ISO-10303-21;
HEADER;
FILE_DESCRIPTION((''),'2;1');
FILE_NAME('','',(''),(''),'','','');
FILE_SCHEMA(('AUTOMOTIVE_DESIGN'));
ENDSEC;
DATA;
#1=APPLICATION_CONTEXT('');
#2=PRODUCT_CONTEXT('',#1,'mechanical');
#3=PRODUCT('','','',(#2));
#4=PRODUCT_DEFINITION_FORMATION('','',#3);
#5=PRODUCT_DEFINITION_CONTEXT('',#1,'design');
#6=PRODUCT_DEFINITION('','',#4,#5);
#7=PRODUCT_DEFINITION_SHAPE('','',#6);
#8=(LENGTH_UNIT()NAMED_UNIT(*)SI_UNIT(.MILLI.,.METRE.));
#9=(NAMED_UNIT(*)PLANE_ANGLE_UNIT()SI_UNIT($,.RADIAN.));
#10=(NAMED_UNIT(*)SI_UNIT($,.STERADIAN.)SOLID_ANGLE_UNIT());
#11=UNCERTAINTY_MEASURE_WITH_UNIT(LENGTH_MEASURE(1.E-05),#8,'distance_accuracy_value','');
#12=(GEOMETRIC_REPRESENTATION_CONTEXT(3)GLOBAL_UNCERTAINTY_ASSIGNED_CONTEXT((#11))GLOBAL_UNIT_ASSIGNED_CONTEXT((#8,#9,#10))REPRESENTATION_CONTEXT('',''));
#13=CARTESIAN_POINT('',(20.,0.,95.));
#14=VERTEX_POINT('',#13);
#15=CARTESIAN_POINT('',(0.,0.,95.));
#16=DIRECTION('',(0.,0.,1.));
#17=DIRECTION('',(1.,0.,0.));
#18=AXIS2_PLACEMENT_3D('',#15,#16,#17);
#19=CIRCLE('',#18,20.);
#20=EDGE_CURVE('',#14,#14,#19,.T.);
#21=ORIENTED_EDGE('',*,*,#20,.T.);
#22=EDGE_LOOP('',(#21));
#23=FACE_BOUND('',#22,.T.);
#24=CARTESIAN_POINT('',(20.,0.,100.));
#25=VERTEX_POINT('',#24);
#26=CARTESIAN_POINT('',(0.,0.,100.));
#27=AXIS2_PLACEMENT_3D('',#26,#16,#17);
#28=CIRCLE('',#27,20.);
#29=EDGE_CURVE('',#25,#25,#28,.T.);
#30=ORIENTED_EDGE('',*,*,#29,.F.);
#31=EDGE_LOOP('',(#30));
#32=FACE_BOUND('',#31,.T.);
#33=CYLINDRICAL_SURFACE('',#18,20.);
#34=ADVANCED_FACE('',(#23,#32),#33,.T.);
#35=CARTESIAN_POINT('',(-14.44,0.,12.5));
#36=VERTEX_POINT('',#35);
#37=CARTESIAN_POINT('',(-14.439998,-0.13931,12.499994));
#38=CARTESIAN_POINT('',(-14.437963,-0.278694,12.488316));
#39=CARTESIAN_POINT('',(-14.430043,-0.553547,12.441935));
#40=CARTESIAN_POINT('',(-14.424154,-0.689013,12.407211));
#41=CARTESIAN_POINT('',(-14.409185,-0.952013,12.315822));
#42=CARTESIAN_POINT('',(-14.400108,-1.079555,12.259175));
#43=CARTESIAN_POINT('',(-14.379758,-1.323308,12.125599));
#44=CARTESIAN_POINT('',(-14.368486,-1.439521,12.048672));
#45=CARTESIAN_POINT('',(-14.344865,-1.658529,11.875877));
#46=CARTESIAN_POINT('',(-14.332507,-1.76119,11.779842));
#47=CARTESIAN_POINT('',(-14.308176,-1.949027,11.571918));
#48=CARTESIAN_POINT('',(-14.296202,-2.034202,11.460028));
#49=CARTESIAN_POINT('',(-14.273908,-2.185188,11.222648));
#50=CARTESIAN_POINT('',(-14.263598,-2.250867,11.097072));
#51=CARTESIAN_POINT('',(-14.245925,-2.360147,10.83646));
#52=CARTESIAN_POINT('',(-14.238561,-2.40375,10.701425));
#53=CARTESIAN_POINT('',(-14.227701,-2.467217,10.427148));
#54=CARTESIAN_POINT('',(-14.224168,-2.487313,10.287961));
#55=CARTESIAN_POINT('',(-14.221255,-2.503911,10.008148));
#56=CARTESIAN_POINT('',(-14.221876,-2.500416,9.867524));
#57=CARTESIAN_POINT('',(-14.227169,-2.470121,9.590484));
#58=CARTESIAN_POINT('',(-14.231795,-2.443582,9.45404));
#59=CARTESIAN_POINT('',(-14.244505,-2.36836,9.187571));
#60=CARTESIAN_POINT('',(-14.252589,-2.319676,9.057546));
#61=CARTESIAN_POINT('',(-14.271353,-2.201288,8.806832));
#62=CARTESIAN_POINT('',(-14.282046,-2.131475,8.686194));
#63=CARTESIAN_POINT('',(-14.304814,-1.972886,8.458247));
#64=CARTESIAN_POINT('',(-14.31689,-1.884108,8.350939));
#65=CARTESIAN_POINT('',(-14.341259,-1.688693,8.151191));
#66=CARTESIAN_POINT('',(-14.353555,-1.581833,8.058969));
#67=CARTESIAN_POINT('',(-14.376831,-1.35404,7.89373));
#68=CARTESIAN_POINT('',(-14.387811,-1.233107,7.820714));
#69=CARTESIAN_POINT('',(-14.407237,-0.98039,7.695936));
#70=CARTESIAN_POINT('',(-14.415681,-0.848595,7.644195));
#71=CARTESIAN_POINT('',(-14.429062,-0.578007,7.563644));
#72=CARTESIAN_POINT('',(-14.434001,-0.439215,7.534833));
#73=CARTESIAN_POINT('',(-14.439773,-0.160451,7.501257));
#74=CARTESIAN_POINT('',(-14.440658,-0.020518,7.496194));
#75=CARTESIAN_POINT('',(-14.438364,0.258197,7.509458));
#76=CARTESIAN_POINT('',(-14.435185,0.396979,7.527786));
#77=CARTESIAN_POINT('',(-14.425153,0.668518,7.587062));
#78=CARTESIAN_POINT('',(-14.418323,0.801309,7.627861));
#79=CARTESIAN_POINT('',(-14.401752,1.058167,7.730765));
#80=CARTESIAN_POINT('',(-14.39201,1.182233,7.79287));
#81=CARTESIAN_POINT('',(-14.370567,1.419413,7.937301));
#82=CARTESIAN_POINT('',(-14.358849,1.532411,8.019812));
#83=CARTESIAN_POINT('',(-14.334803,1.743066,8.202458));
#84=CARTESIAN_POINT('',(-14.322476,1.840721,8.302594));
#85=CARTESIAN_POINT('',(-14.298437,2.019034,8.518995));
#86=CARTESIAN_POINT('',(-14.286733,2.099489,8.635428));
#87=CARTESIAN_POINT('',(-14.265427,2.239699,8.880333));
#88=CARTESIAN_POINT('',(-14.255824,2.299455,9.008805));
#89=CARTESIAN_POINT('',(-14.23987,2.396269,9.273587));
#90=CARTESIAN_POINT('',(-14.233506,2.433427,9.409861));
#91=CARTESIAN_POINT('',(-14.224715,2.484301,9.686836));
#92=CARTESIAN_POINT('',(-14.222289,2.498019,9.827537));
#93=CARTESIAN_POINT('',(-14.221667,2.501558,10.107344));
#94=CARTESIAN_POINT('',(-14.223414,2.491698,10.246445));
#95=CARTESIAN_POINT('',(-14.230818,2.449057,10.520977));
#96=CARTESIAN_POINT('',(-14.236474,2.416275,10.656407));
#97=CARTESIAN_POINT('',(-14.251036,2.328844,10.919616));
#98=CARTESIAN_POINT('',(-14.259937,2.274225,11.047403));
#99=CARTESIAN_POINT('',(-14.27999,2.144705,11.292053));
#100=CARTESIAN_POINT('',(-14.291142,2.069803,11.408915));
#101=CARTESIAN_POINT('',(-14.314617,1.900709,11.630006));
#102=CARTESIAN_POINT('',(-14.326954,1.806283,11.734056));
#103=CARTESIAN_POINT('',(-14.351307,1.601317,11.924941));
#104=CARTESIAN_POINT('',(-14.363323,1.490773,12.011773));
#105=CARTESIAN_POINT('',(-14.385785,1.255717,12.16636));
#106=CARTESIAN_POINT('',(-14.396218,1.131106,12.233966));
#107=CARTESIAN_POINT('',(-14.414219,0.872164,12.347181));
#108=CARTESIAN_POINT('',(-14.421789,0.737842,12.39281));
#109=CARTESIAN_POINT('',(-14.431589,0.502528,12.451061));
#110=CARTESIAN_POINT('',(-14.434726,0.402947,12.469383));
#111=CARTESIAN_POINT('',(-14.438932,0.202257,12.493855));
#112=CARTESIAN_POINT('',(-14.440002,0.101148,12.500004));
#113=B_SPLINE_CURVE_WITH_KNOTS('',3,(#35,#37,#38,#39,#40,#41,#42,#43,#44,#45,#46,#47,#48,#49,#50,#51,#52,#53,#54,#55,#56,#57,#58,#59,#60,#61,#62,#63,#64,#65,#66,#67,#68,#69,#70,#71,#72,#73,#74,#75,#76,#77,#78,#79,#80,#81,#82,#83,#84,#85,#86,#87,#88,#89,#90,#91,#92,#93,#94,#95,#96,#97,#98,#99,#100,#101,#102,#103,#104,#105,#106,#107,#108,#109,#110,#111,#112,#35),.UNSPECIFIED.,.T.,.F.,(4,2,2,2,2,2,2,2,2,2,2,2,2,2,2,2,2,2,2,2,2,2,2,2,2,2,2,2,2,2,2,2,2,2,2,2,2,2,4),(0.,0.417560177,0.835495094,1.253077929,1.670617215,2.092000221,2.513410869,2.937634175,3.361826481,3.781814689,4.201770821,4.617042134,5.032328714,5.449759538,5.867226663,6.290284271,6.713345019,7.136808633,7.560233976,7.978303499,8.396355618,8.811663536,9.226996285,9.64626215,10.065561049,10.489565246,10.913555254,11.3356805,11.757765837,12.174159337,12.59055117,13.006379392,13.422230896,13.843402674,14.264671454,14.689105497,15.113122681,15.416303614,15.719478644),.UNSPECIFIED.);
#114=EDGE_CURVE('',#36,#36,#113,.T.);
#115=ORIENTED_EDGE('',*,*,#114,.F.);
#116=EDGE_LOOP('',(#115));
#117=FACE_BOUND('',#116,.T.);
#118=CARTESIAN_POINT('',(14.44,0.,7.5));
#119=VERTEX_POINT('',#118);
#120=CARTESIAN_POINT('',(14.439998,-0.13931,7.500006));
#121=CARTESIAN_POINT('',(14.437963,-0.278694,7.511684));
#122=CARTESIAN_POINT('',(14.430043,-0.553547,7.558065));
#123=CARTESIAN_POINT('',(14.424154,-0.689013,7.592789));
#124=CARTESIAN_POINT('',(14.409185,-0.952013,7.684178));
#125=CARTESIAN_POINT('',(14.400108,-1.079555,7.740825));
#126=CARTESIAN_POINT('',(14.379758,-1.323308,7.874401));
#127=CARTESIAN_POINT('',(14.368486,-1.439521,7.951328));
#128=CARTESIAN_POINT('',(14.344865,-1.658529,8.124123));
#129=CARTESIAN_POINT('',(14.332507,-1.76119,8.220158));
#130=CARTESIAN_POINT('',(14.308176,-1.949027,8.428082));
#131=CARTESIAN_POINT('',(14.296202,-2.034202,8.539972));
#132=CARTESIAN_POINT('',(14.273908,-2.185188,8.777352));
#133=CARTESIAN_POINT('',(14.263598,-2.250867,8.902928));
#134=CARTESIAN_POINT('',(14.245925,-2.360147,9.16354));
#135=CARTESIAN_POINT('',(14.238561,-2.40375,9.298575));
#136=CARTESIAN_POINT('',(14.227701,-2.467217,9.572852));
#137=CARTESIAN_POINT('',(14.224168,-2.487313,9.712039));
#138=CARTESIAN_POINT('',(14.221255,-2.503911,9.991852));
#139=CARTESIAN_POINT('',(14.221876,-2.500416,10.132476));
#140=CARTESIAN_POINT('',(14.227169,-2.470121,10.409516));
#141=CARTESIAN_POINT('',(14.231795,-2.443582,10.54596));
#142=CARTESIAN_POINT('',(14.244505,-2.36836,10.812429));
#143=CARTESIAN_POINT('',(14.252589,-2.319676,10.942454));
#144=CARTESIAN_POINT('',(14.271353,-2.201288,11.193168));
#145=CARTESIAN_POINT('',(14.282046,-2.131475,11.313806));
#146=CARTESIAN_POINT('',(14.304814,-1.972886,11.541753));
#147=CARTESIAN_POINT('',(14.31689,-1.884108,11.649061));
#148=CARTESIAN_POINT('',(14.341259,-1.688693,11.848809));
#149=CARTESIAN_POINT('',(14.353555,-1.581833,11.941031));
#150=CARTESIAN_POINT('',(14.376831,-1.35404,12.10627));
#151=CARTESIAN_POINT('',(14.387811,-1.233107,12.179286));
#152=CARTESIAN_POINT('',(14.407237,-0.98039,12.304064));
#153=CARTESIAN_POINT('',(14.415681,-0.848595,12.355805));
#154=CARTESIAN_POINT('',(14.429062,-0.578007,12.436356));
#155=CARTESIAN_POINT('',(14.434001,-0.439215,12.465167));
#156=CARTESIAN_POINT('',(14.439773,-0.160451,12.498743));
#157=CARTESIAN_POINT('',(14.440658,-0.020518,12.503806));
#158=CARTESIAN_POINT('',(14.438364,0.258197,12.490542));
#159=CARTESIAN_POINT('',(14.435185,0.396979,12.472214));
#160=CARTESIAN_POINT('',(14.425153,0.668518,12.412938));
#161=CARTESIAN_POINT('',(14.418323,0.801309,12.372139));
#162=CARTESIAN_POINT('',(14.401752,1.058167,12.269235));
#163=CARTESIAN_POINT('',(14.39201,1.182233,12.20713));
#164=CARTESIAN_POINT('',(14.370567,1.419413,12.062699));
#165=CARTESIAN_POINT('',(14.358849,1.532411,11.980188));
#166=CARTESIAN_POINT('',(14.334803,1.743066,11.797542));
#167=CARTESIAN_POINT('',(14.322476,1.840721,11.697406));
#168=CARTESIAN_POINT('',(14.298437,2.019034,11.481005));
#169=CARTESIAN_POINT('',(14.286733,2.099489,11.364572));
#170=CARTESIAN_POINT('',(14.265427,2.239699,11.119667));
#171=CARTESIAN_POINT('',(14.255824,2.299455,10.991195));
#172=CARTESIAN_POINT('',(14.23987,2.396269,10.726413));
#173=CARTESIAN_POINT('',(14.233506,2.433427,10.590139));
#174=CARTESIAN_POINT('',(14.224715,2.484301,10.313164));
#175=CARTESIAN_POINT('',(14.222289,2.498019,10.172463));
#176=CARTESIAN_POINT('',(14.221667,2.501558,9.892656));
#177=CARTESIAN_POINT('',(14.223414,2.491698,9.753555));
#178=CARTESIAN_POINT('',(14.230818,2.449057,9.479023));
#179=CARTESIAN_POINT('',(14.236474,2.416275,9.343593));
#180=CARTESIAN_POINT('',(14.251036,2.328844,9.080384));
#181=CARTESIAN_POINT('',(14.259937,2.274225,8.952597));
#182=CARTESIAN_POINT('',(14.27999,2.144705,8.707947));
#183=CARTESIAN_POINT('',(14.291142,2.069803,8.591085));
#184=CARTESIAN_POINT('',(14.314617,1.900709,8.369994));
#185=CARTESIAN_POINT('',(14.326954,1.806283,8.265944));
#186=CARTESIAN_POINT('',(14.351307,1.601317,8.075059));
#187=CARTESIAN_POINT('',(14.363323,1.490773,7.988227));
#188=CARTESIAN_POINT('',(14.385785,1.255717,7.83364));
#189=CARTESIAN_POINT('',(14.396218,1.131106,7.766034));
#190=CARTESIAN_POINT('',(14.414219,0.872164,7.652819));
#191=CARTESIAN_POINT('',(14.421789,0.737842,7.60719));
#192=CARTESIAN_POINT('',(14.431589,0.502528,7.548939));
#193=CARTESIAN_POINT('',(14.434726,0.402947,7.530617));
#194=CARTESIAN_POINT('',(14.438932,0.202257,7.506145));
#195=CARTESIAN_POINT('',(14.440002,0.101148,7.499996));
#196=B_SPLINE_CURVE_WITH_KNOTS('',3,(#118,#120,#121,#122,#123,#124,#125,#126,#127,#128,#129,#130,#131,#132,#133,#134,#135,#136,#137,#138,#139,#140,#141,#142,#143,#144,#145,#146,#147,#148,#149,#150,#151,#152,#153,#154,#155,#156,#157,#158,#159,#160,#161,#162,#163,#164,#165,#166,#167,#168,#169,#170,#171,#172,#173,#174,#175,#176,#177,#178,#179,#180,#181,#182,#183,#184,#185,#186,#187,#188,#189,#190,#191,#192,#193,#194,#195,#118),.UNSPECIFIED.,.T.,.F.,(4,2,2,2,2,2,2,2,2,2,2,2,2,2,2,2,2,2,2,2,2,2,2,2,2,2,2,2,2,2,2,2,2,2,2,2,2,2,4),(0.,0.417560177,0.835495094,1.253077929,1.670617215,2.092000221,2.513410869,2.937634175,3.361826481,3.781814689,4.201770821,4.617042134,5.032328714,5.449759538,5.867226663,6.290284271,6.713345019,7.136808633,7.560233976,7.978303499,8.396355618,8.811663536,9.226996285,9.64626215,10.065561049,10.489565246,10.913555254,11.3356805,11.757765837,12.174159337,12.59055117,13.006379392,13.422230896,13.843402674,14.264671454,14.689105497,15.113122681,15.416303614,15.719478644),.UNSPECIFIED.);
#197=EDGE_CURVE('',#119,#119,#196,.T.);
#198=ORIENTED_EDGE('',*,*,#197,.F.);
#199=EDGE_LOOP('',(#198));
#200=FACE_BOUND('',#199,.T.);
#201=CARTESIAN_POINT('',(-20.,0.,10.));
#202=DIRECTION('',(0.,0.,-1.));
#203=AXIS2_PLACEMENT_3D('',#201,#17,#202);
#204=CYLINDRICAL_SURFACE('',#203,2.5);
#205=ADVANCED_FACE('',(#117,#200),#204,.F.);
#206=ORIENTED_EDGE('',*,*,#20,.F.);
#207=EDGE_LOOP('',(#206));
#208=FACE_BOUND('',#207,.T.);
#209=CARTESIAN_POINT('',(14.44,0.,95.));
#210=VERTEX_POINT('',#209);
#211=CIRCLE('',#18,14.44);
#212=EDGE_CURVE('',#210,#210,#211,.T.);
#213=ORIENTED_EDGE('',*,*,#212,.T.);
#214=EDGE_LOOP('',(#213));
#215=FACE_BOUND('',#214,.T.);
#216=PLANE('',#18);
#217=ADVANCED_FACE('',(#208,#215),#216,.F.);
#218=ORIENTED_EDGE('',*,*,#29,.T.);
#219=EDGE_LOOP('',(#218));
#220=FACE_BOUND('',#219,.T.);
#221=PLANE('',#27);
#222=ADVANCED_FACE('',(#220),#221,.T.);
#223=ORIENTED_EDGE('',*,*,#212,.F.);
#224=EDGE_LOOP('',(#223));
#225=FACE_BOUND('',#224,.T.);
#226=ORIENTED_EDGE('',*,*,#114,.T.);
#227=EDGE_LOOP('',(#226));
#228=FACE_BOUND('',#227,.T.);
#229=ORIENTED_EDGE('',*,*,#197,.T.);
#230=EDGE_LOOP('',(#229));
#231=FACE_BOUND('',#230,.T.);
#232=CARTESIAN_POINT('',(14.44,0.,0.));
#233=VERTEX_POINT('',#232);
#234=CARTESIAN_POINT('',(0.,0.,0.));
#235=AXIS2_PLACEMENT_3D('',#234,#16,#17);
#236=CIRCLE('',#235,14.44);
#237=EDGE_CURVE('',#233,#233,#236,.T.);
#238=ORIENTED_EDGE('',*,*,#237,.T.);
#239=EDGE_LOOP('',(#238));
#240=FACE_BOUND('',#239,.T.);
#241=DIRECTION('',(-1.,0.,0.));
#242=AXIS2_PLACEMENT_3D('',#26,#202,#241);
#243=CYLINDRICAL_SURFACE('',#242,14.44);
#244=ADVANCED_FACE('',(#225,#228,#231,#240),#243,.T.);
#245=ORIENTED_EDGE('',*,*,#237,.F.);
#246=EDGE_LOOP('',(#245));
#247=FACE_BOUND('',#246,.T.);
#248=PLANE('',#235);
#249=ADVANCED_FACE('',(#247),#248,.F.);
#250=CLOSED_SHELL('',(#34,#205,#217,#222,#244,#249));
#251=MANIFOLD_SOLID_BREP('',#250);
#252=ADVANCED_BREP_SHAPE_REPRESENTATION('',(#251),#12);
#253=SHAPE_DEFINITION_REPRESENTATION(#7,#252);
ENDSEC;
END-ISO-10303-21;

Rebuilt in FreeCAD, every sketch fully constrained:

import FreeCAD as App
import Part
import Sketcher

V = App.Vector
Q = App.Units.Quantity

doc = App.newDocument("Part")
body = doc.addObject("PartDesign::Body", "Body")

# Sketch on XY plane
sketch1 = doc.addObject("Sketcher::SketchObject", "Sketch")
body.addObject(sketch1)
sketch1.AttachmentSupport = (doc.XY_Plane, [""])
sketch1.MapMode = "FlatFace"
sketch1.addGeometry(Part.Circle(V(0, 0, 0), V(0, 0, 1), 14), False)
sketch1.addConstraint(Sketcher.Constraint("Coincident", 0, 3, -1, 1))
sketch1.addConstraint(Sketcher.Constraint("Diameter", 0, Q("28.88 mm")))
pad1 = doc.addObject("PartDesign::Pad", "Pad")
body.addObject(pad1)
pad1.Profile = sketch1
pad1.Length = 100

# Sketch on XY plane
sketch2 = doc.addObject("Sketcher::SketchObject", "Sketch001")
body.addObject(sketch2)
sketch2.AttachmentSupport = (doc.XY_Plane, [""])
sketch2.MapMode = "FlatFace"
sketch2.AttachmentOffset = App.Placement(V(0, 0, 100), App.Rotation())
sketch2.addGeometry(Part.Circle(V(0, 0, 0), V(0, 0, 1), 20), False)
sketch2.addConstraint(Sketcher.Constraint("Coincident", 0, 3, -1, 1))
sketch2.addConstraint(Sketcher.Constraint("Diameter", 0, Q("40 mm")))
pad2 = doc.addObject("PartDesign::Pad", "Pad001")
body.addObject(pad2)
pad2.Profile = sketch2
pad2.Length = 5
pad2.Reversed = True

# Sketch on YZ plane
sketch3 = doc.addObject("Sketcher::SketchObject", "Sketch002")
body.addObject(sketch3)
sketch3.AttachmentSupport = (doc.YZ_Plane, [""])
sketch3.MapMode = "FlatFace"
sketch3.addGeometry(Part.Circle(V(0, 10, 0), V(0, 0, 1), 2.5), False)
sketch3.addConstraint(Sketcher.Constraint("PointOnObject", 0, 3, -2))
sketch3.addConstraint(Sketcher.Constraint("Diameter", 0, Q("5 mm")))
sketch3.addConstraint(Sketcher.Constraint("DistanceY", -1, 1, 0, 3, Q("10 mm")))
pocket1 = doc.addObject("PartDesign::Pocket", "Pocket")
body.addObject(pocket1)
pocket1.Profile = sketch3
pocket1.Type = "ThroughAll"
pocket1.Midplane = True

doc.recompute()
